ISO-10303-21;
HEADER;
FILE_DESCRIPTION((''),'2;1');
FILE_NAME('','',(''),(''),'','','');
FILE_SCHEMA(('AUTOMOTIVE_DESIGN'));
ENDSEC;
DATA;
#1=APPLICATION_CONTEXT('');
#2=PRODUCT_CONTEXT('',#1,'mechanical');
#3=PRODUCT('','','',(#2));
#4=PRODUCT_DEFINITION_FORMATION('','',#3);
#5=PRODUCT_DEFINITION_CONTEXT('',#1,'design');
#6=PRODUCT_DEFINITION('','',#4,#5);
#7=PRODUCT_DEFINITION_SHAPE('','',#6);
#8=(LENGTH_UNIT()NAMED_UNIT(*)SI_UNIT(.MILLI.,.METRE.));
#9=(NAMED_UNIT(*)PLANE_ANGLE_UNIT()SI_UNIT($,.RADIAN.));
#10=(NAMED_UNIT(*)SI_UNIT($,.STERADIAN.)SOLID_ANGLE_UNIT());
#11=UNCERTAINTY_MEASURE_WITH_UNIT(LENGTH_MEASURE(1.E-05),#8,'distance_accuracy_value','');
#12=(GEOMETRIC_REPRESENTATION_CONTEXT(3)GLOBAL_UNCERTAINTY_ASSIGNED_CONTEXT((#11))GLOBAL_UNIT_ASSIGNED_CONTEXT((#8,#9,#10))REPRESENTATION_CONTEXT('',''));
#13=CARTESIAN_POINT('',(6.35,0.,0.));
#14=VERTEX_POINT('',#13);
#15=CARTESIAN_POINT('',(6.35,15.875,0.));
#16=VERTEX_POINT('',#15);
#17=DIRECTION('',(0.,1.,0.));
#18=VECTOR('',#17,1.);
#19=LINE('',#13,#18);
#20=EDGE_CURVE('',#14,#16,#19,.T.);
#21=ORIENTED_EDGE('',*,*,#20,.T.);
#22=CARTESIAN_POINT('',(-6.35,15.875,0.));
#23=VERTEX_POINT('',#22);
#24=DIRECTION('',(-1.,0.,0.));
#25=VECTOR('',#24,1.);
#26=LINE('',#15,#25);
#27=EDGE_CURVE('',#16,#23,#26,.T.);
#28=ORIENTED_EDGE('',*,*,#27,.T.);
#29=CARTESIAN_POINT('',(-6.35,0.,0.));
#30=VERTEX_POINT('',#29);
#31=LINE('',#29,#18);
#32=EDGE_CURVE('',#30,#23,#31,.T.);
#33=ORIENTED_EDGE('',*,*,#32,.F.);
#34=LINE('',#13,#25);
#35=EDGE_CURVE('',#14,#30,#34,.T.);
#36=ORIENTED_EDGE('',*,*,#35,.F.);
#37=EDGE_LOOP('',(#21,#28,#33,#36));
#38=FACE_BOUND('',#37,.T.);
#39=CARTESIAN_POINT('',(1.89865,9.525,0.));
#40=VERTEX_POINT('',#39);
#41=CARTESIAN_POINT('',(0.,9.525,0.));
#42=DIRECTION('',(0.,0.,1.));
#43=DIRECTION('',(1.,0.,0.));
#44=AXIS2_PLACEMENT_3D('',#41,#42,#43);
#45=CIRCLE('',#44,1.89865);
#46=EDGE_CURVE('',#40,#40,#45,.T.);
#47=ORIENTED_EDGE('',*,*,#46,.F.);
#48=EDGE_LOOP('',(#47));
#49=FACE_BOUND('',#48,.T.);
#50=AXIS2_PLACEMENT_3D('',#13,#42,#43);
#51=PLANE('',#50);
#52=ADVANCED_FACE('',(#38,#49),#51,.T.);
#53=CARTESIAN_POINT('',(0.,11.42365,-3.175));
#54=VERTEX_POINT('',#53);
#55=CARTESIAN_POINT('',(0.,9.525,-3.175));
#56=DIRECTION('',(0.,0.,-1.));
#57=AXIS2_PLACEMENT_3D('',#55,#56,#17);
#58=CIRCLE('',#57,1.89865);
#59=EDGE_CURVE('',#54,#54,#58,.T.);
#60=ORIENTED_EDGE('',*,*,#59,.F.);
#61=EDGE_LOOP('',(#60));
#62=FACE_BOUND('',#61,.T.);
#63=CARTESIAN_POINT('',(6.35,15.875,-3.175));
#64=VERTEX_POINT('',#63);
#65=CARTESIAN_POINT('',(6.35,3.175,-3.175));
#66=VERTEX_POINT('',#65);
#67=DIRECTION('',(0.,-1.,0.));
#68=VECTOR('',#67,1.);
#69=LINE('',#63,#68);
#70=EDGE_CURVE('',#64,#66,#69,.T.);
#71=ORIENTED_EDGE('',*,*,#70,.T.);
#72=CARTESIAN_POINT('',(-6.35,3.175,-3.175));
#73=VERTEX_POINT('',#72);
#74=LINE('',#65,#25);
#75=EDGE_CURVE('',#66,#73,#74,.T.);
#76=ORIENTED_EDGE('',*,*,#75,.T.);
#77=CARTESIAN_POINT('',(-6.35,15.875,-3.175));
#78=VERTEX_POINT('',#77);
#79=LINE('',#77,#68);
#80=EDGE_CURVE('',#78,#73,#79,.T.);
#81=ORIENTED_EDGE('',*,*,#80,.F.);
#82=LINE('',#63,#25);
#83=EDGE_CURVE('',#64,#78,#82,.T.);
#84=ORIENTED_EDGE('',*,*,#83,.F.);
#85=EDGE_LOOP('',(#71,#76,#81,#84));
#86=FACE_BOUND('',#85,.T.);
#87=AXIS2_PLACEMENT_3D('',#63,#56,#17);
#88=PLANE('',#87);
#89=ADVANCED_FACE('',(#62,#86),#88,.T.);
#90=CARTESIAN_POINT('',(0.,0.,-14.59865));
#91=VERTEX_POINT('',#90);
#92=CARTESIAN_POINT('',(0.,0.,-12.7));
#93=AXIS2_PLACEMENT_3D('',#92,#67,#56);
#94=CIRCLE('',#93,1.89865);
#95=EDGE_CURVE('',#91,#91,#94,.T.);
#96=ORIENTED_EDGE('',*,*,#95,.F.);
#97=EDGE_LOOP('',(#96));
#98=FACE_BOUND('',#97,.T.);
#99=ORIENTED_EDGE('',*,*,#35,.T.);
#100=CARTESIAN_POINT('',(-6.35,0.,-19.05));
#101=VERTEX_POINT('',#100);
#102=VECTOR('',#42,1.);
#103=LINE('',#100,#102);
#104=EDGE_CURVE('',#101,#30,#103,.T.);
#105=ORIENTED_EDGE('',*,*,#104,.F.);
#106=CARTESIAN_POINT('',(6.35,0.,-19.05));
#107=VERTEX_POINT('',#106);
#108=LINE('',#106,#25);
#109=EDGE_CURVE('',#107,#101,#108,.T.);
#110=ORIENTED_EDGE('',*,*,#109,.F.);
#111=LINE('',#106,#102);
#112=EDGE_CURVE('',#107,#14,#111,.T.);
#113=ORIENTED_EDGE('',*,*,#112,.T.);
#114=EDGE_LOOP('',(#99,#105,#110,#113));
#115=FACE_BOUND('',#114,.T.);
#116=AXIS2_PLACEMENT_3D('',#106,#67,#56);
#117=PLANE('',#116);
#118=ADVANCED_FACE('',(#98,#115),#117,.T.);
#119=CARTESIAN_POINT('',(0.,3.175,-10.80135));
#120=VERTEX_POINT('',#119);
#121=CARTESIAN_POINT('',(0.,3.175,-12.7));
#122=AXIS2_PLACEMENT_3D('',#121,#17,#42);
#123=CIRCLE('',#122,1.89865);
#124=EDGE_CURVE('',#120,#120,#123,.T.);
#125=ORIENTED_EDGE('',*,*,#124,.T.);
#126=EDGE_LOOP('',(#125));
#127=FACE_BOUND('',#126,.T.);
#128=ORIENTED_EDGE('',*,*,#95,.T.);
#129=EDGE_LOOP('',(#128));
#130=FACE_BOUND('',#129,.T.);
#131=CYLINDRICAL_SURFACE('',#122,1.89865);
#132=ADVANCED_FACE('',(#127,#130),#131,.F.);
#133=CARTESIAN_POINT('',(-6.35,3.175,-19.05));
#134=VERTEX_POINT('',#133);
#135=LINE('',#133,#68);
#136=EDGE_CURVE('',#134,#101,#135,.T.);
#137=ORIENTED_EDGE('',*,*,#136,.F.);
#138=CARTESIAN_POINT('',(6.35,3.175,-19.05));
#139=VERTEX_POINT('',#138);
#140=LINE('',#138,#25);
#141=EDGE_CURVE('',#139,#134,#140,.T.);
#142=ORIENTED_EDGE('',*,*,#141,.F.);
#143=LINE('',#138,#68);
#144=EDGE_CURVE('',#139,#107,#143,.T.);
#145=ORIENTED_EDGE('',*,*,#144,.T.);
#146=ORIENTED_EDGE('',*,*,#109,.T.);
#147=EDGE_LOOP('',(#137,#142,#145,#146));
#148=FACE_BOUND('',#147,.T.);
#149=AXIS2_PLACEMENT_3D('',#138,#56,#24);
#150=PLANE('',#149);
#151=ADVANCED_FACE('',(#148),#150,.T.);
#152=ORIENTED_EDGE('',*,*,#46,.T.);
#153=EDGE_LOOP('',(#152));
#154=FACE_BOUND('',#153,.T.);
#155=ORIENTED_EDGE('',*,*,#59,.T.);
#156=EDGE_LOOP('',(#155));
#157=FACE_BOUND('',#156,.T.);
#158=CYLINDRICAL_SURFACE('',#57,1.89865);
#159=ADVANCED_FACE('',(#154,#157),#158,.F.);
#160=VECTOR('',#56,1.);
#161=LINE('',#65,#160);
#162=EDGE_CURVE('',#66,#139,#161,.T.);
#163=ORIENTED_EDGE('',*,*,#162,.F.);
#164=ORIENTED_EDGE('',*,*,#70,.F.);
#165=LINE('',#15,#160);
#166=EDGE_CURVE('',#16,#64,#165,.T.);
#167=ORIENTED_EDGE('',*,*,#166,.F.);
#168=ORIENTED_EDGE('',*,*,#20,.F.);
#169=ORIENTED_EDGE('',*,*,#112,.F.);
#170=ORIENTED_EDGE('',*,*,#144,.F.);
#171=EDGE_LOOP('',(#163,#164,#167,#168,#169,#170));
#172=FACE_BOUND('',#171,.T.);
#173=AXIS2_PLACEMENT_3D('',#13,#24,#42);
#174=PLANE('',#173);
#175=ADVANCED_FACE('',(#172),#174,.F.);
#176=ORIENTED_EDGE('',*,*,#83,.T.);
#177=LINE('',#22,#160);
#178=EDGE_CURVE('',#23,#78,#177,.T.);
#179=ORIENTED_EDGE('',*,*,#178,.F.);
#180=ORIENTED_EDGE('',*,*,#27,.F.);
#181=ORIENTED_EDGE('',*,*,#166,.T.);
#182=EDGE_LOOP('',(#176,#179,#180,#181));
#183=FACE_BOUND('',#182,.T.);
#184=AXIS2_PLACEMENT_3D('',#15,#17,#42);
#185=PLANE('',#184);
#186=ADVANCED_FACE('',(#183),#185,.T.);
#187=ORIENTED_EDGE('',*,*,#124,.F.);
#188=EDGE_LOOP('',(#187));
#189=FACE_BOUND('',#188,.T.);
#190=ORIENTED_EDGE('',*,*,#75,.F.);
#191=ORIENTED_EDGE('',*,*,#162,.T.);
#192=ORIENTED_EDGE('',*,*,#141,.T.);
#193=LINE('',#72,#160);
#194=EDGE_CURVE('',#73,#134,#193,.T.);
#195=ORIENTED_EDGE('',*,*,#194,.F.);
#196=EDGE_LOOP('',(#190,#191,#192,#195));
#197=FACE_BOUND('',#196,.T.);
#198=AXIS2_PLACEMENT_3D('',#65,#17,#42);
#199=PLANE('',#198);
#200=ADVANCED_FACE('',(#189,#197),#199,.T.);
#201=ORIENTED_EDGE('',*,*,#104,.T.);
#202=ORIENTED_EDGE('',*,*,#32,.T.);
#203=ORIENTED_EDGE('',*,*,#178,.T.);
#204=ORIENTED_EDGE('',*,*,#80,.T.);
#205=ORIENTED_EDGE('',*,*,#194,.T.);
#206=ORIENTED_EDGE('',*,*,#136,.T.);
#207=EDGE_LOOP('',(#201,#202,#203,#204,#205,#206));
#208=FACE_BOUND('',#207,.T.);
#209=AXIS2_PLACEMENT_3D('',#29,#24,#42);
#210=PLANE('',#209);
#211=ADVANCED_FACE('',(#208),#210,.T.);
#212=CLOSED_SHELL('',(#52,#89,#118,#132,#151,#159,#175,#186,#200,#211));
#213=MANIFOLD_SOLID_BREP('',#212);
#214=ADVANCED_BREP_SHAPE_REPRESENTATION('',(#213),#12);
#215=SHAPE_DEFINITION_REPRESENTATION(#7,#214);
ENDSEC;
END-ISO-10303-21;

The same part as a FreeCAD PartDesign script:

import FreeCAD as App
import Part
import Sketcher

V = App.Vector
Q = App.Units.Quantity

doc = App.newDocument("Part")
body = doc.addObject("PartDesign::Body", "Body")

sketch1 = body.newObject("Sketcher::SketchObject", "Sketch")
sketch1.AttachmentSupport = (doc.getObject("YZ_Plane"), [""])
sketch1.MapMode = "FlatFace"
sketch1.addGeometry([
    Part.LineSegment(V(15.875, 0, 0), V(0, 0, 0)),
    Part.LineSegment(V(0, 0, 0), V(0, -19.05, 0)),
    Part.LineSegment(V(0, -19.05, 0), V(3.175, -19.05, 0)),
    Part.LineSegment(V(3.175, -19.05, 0), V(3.175, -3.175, 0)),
    Part.LineSegment(V(3.175, -3.175, 0), V(15.875, -3.175, 0)),
    Part.LineSegment(V(15.875, -3.175, 0), V(15.875, 0, 0)),
], False)
sketch1.addConstraint([
    Sketcher.Constraint("Coincident", 0, 2, 1, 1),
    Sketcher.Constraint("Coincident", 1, 2, 2, 1),
    Sketcher.Constraint("Coincident", 2, 2, 3, 1),
    Sketcher.Constraint("Coincident", 3, 2, 4, 1),
    Sketcher.Constraint("Coincident", 4, 2, 5, 1),
    Sketcher.Constraint("Coincident", 5, 2, 0, 1),
    Sketcher.Constraint("Horizontal", 0),
    Sketcher.Constraint("Vertical", 1),
    Sketcher.Constraint("Horizontal", 2),
    Sketcher.Constraint("Vertical", 3),
    Sketcher.Constraint("Horizontal", 4),
    Sketcher.Constraint("Vertical", 5),
    Sketcher.Constraint("Coincident", 0, 2, -1, 1),
    Sketcher.Constraint("Equal", 0, 3),
    Sketcher.Constraint("Equal", 2, 5),
    Sketcher.Constraint("DistanceX", 4, 1, 4, 2, Q("0.5 in")),
    Sketcher.Constraint("DistanceY", 1, 2, 1, 1, Q("0.75 in")),
])
pad1 = body.newObject("PartDesign::Pad", "Pad")
pad1.Profile = sketch1
pad1.Type = "TwoLengths"
pad1.Length = Q("0.25 in")
pad1.Length2 = Q("0.25 in")

sketch2 = body.newObject("Sketcher::SketchObject", "Sketch001")
sketch2.AttachmentSupport = (doc.getObject("XY_Plane"), [""])
sketch2.MapMode = "FlatFace"
sketch2.AttachmentOffset = App.Placement(V(0, 0, -0.125 * 25.4), App.Rotation())
sketch2.addGeometry(Part.Circle(V(0, 9.525, 0), V(0, 0, 1), 1.89865), False)
sketch2.addConstraint([
    Sketcher.Constraint("PointOnObject", 0, 3, -2),
    Sketcher.Constraint("Diameter", 0, Q("0.1495 in")),
    Sketcher.Constraint("DistanceY", -1, 1, 0, 3, Q("0.375 in")),
])
doc.recompute()
hole = body.newObject("PartDesign::Hole", "Hole")
hole.Profile = sketch2
hole.ThreadType = "None"
hole.Diameter = Q("0.1495 in")
hole.DepthType = "Dimension"
hole.Depth = Q("0.5 in")
hole.DrillPoint = "Angled"
hole.DrillPointAngle = 118
hole.Reversed = True

sketch3 = body.newObject("Sketcher::SketchObject", "Sketch002")
sketch3.AttachmentSupport = (doc.getObject("XZ_Plane"), [""])
sketch3.MapMode = "FlatFace"
sketch3.AttachmentOffset = App.Placement(V(0, 0, -0.125 * 25.4), App.Rotation())
sketch3.addGeometry(Part.Circle(V(0, -12.7, 0), V(0, 0, 1), 1.89865), False)
sketch3.addConstraint([
    Sketcher.Constraint("PointOnObject", 0, 3, -2),
    Sketcher.Constraint("Diameter", 0, Q("0.1495 in")),
    Sketcher.Constraint("DistanceY", 0, 3, -1, 1, Q("0.5 in")),
])
doc.recompute()
hole2 = body.newObject("PartDesign::Hole", "Hole001")
hole2.Profile = sketch3
hole2.ThreadType = "None"
hole2.Diameter = Q("0.1495 in")
hole2.DepthType = "Dimension"
hole2.Depth = Q("0.5 in")
hole2.DrillPoint = "Angled"
hole2.DrillPointAngle = 118
hole2.Reversed = True

doc.recompute()
